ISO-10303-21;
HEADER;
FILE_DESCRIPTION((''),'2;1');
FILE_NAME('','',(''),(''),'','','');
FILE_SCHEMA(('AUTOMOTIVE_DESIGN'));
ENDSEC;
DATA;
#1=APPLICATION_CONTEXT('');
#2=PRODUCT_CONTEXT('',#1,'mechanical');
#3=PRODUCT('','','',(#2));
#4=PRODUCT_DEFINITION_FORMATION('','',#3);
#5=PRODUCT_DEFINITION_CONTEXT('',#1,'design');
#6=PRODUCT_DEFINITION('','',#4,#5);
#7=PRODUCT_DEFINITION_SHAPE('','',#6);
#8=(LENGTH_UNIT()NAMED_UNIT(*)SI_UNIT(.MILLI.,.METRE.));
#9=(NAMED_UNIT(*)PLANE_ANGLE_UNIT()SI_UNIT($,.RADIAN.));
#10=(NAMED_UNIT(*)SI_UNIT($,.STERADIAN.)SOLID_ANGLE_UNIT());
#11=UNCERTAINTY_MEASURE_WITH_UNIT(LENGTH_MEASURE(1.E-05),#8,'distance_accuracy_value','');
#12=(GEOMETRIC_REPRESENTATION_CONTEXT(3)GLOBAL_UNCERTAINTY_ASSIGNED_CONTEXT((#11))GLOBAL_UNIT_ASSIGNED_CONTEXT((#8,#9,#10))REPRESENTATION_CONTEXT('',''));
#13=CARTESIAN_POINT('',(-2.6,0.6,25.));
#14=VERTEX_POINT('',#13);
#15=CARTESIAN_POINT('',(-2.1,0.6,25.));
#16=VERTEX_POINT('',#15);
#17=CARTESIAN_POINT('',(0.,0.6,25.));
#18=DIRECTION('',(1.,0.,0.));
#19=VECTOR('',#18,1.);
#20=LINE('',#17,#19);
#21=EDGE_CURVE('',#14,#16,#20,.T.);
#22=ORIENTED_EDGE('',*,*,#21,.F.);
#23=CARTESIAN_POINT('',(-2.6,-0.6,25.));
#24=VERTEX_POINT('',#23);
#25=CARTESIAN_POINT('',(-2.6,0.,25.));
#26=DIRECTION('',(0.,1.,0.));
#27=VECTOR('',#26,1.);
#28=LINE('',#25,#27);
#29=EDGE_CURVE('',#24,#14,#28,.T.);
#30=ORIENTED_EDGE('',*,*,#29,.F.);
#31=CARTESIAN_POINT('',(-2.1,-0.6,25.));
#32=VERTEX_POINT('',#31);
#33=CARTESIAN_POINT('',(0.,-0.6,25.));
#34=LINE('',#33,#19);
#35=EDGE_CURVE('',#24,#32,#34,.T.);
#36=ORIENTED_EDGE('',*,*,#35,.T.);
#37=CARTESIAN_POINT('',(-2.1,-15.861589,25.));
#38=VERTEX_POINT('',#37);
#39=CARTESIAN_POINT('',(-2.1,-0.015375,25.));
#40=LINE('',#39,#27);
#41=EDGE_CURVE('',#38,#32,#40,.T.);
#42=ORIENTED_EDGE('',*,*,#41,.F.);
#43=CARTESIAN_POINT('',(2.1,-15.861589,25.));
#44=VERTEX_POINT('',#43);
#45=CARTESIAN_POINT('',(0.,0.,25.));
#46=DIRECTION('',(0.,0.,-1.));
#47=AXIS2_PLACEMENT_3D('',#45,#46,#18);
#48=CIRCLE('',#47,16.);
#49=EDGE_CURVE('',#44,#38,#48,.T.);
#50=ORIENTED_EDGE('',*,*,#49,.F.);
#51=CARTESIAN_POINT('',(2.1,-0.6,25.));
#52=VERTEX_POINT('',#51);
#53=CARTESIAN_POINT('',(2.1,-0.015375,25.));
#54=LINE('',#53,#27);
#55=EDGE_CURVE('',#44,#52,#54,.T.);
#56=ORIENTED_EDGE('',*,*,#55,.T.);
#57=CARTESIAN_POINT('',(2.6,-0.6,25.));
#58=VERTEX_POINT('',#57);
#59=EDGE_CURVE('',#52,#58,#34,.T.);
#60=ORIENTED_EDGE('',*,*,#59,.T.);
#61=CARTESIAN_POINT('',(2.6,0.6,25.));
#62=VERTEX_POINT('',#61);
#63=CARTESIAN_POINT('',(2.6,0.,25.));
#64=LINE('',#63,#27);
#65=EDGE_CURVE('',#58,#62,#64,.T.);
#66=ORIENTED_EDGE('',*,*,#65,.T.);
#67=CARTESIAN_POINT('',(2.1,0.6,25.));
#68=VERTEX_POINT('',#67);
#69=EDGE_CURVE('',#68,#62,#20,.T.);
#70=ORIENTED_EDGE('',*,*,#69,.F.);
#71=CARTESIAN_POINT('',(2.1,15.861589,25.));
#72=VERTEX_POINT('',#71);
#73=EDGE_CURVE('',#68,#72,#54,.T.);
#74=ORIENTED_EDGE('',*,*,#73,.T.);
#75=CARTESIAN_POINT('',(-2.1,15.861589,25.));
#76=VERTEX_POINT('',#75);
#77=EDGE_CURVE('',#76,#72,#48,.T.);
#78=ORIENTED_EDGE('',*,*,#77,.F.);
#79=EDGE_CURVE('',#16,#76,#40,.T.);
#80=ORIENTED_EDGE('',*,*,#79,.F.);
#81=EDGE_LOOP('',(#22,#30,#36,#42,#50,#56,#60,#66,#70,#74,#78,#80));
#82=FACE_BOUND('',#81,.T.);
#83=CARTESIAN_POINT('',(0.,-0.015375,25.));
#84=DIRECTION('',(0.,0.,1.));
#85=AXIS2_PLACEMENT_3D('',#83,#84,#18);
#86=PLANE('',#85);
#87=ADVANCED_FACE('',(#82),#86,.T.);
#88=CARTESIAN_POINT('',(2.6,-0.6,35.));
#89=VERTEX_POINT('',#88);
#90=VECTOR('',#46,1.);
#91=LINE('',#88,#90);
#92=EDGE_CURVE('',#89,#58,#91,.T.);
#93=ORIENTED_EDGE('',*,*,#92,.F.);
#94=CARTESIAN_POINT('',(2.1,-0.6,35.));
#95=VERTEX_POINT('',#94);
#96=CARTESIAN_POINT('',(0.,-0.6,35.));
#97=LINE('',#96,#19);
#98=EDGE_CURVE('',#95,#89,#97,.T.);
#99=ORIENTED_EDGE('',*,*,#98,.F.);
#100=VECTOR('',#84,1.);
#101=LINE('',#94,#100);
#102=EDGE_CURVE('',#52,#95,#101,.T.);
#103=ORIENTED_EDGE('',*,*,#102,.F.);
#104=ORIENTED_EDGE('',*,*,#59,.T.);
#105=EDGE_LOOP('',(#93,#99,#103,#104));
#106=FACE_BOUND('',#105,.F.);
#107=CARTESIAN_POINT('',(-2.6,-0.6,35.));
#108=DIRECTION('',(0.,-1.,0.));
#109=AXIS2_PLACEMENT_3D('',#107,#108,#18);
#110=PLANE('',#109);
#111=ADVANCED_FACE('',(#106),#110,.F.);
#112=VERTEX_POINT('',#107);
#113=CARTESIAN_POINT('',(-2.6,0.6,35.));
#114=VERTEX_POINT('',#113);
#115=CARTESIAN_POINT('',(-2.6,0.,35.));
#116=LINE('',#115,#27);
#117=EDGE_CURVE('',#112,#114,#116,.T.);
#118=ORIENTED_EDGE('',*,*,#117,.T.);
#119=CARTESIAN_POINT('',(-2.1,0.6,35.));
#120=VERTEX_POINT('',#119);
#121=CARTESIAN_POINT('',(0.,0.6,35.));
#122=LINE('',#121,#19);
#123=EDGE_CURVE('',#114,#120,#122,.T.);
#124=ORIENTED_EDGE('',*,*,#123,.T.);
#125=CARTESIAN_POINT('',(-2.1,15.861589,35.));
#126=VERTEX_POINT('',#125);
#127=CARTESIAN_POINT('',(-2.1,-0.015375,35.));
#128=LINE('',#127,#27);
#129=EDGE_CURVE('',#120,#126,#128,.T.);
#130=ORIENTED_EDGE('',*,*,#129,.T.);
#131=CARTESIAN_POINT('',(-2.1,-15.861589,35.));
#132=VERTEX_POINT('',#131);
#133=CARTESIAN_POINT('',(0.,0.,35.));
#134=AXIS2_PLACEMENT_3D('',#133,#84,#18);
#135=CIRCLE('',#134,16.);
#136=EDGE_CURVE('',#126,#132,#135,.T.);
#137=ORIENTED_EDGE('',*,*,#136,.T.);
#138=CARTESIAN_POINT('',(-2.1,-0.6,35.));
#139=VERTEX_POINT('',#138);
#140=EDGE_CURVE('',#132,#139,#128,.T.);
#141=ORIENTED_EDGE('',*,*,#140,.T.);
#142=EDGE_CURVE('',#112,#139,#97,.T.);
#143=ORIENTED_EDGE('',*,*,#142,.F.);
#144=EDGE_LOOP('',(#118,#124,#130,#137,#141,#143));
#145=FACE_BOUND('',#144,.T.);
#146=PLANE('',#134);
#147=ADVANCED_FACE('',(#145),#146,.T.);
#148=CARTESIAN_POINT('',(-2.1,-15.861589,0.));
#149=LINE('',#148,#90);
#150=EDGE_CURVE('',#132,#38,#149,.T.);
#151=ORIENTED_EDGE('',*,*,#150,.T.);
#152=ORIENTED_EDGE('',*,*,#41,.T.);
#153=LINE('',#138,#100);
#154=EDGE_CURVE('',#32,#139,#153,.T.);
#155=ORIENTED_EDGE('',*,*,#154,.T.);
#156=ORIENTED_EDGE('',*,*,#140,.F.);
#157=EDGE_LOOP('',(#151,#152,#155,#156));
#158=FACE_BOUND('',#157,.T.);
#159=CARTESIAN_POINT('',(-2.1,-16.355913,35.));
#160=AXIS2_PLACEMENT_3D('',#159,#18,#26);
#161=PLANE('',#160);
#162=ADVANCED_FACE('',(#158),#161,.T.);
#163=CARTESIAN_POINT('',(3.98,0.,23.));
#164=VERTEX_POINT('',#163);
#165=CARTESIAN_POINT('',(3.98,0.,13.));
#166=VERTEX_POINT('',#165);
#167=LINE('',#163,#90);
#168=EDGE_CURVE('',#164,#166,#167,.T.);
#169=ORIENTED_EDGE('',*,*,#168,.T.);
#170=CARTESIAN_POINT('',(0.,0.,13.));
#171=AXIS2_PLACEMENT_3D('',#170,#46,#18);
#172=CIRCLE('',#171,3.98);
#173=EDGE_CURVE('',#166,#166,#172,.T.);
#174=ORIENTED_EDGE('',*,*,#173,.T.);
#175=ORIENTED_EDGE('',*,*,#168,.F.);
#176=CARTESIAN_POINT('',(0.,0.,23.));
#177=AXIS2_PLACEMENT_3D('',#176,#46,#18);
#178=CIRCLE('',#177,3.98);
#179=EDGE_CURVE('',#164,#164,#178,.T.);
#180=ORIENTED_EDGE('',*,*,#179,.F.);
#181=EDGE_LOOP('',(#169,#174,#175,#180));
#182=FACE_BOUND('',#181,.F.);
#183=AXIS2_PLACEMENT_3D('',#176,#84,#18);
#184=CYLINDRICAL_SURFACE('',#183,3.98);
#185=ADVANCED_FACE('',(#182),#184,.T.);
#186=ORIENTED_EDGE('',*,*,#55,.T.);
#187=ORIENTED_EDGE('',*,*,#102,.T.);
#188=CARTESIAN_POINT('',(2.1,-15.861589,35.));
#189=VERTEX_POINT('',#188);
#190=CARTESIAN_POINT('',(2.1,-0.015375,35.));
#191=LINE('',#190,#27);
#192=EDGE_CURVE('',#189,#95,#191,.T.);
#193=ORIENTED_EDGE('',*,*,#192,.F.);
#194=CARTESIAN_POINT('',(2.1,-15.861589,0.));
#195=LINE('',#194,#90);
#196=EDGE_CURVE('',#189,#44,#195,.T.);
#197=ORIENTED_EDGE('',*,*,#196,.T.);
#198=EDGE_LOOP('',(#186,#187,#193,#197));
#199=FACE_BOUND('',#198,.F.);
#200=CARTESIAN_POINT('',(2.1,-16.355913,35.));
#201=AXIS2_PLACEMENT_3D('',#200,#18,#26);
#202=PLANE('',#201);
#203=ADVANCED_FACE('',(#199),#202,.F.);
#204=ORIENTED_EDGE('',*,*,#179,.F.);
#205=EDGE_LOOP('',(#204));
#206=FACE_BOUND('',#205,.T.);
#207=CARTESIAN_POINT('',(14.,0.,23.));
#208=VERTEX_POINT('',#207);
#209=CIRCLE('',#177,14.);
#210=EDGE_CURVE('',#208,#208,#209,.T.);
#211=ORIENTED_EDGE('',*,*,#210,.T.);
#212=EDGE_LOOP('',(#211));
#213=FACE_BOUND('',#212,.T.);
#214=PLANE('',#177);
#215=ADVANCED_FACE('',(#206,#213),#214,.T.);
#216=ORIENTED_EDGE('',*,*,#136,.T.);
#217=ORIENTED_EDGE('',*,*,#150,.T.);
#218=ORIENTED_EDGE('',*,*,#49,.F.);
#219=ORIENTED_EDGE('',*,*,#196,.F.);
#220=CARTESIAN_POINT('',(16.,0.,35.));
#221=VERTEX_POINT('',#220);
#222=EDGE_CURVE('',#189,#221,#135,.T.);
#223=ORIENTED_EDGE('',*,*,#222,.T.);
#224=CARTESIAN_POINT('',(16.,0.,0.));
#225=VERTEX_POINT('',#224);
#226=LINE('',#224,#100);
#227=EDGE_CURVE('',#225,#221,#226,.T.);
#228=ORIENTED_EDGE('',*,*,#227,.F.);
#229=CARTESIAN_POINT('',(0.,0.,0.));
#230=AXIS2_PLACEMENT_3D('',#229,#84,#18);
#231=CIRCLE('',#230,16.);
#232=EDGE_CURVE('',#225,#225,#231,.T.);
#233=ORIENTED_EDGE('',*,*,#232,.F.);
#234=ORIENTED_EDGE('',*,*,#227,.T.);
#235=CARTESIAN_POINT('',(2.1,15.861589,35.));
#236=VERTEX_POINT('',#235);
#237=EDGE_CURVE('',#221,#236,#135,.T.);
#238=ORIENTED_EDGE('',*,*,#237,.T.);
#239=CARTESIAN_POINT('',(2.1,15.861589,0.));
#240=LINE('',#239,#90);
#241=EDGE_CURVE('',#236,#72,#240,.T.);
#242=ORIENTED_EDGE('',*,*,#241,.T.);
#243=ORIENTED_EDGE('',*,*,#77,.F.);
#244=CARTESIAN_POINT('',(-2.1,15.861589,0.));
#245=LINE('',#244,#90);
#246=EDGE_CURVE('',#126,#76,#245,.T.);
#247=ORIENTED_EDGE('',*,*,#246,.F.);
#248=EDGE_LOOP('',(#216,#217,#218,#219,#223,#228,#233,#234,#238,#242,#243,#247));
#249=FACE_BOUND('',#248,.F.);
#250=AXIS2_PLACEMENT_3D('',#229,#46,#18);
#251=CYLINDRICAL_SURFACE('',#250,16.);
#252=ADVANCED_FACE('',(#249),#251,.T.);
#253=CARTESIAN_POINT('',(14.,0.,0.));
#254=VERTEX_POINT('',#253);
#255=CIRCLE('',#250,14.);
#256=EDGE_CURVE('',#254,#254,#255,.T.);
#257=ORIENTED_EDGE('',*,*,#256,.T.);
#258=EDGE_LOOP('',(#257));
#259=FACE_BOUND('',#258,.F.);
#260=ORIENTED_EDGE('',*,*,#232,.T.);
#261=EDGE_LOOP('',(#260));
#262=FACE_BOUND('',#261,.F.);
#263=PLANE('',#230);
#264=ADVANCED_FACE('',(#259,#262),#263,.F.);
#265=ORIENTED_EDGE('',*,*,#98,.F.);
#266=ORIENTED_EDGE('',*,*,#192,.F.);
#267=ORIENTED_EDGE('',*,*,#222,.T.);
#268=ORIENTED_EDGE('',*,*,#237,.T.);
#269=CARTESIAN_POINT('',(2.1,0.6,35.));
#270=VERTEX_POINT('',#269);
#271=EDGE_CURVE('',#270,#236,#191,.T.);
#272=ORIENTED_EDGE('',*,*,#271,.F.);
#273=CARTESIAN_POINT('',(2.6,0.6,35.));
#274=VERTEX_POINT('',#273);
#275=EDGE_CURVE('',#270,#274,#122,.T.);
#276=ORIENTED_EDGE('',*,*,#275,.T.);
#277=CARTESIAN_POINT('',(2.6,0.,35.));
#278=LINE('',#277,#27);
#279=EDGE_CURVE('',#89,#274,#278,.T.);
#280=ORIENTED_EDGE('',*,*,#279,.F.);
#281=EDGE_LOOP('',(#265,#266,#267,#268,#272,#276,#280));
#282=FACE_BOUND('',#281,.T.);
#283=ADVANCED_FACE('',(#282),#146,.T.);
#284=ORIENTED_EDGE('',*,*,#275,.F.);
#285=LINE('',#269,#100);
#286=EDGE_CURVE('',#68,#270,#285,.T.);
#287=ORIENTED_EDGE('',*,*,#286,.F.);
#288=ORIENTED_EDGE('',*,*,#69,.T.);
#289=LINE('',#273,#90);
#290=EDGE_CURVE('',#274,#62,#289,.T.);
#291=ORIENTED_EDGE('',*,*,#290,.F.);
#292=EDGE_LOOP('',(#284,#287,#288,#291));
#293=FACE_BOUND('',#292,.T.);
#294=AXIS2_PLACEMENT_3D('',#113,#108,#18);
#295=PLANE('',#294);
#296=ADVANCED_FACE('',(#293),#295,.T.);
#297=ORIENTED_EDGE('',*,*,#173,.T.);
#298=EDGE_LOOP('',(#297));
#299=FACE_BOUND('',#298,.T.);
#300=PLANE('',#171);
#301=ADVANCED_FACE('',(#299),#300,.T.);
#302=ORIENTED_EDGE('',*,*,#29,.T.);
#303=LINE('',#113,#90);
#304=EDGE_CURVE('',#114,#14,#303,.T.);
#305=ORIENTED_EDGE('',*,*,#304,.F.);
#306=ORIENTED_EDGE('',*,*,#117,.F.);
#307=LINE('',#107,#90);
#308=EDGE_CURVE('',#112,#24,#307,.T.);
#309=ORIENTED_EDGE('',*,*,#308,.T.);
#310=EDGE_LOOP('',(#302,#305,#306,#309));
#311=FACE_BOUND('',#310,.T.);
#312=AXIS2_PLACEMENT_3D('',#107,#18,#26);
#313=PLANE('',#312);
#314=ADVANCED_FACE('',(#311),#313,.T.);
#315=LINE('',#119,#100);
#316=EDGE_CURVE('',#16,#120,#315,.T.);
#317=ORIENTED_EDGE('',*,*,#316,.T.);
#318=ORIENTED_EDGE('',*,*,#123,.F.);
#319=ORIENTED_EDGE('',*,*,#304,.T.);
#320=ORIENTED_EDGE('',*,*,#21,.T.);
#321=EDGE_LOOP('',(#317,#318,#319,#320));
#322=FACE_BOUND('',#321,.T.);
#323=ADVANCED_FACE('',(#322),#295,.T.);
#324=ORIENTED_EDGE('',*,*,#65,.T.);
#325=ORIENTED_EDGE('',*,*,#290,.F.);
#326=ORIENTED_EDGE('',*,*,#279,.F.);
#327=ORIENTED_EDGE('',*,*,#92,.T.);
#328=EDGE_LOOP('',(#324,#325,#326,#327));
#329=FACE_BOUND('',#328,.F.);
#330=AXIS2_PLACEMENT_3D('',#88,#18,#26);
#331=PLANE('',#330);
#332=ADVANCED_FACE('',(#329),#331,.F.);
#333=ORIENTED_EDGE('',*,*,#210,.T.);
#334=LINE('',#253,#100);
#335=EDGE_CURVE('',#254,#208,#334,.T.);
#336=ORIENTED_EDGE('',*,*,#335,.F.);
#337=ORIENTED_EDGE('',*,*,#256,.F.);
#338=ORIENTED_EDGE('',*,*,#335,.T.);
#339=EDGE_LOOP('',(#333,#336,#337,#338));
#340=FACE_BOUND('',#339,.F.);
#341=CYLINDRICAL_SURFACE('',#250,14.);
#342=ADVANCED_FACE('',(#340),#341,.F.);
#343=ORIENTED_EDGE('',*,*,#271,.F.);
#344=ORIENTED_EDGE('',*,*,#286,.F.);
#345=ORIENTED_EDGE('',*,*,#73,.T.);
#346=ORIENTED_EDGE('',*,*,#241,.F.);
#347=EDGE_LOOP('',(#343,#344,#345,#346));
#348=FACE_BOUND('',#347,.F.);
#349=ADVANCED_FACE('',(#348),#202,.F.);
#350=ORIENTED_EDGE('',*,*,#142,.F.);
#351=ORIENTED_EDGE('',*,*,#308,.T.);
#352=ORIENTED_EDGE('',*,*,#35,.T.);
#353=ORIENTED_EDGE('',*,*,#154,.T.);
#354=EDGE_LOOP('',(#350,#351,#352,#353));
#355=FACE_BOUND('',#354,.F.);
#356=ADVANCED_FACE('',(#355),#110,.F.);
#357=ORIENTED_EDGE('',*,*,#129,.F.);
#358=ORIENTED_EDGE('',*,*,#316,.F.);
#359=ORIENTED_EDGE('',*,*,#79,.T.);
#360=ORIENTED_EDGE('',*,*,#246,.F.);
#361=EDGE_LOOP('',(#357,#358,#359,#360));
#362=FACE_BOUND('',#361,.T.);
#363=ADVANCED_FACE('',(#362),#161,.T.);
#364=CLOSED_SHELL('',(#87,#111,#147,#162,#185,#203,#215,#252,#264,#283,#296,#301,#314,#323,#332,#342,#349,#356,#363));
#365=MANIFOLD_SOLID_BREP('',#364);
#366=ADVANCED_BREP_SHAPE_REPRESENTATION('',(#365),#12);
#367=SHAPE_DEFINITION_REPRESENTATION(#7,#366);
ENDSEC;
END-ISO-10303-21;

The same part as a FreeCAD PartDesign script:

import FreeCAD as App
import Part
import Sketcher

V = App.Vector
Q = App.Units.Quantity


def add_polygon(sketch, points):
    """Adds a closed chain of lines whose ends are joined by coincident constraints."""
    first, n = sketch.GeometryCount, len(points)
    for a, b in zip(points, points[1:] + points[:1]):
        sketch.addGeometry(Part.LineSegment(App.Vector(*a, 0), App.Vector(*b, 0)), False)
    for i in range(n):
        sketch.addConstraint(Sketcher.Constraint("Coincident", first + i, 2, first + (i + 1) % n, 1))

doc = App.newDocument("Part")
body = doc.addObject("PartDesign::Body", "Body")

sketch1 = body.newObject("Sketcher::SketchObject", "Sketch")
sketch1.AttachmentSupport = (doc.getObject("XY_Plane"), [""])
sketch1.MapMode = "FlatFace"
sketch1.addGeometry(Part.Circle(V(0, 0, 0), V(0, 0, 1), 16), False)
sketch1.addConstraint([
    Sketcher.Constraint("Coincident", 0, 3, -1, 1),
    Sketcher.Constraint("Diameter", 0, Q("32 mm")),
])
pad1 = body.newObject("PartDesign::Pad", "Pad")
pad1.Profile = sketch1
pad1.Length = 35

sketch2 = body.newObject("Sketcher::SketchObject", "Sketch001")
sketch2.AttachmentSupport = (doc.getObject("XY_Plane"), [""])
sketch2.MapMode = "FlatFace"
sketch2.addGeometry(Part.Circle(V(0, 0, 0), V(0, 0, 1), 14), False)
sketch2.addConstraint([
    Sketcher.Constraint("Coincident", 0, 3, -1, 1),
    Sketcher.Constraint("Diameter", 0, Q("28 mm")),
])
pocket1 = body.newObject("PartDesign::Pocket", "Pocket")
pocket1.Profile = sketch2
pocket1.Length = 23
pocket1.Reversed = True

sketch3 = body.newObject("Sketcher::SketchObject", "Sketch002")
sketch3.AttachmentSupport = (doc.getObject("XY_Plane"), [""])
sketch3.MapMode = "FlatFace"
sketch3.AttachmentOffset = App.Placement(V(0, 0, 23), App.Rotation())
sketch3.addGeometry(Part.Circle(V(0, 0, 0), V(0, 0, 1), 4), False)
sketch3.addConstraint([
    Sketcher.Constraint("Coincident", 0, 3, -1, 1),
    Sketcher.Constraint("Diameter", 0, Q("7.96 mm")),
])
pad2 = body.newObject("PartDesign::Pad", "Pad001")
pad2.Profile = sketch3
pad2.Length = 10
pad2.Reversed = True

sketch4 = body.newObject("Sketcher::SketchObject", "Sketch003")
sketch4.AttachmentSupport = (doc.getObject("XY_Plane"), [""])
sketch4.MapMode = "FlatFace"
sketch4.AttachmentOffset = App.Placement(V(0, 0, 35), App.Rotation())
add_polygon(sketch4, [(-2.6, 0.6), (-2.6, -0.6), (2.6, -0.6), (2.6, 0.6)])
sketch4.addConstraint([
    Sketcher.Constraint("Vertical", 0),
    Sketcher.Constraint("Horizontal", 1),
    Sketcher.Constraint("Vertical", 2),
    Sketcher.Constraint("Horizontal", 3),
    Sketcher.Constraint("Symmetric", 0, 2, 2, 2, -1, 1),
    Sketcher.Constraint("DistanceX", 1, 1, 1, 2, Q("5.2 mm")),
    Sketcher.Constraint("DistanceY", 0, 2, 0, 1, Q("1.2 mm")),
])
pocket2 = body.newObject("PartDesign::Pocket", "Pocket001")
pocket2.Profile = sketch4
pocket2.Length = 10

sketch5 = body.newObject("Sketcher::SketchObject", "Sketch004")
sketch5.AttachmentSupport = (doc.getObject("XY_Plane"), [""])
sketch5.MapMode = "FlatFace"
sketch5.AttachmentOffset = App.Placement(V(0, 0, 35), App.Rotation())
add_polygon(sketch5, [(-2.1, 16.3), (-2.1, -16.4), (2.1, -16.4), (2.1, 16.3)])
sketch5.addConstraint([
    Sketcher.Constraint("Vertical", 0),
    Sketcher.Constraint("Horizontal", 1),
    Sketcher.Constraint("Vertical", 2),
    Sketcher.Constraint("Horizontal", 3),
    Sketcher.Constraint("DistanceX", 1, 1, 1, 2, Q("4.2 mm")),
    Sketcher.Constraint("DistanceX", 0, 2, -1, 1, Q("2.1 mm")),
    Sketcher.Constraint("DistanceY", 0, 2, 0, 1, Q("32.681076 mm")),
    Sketcher.Constraint("DistanceY", 0, 2, -1, 1, Q("16.355913 mm")),
])
pocket3 = body.newObject("PartDesign::Pocket", "Pocket002")
pocket3.Profile = sketch5
pocket3.Length = 10

doc.recompute()
